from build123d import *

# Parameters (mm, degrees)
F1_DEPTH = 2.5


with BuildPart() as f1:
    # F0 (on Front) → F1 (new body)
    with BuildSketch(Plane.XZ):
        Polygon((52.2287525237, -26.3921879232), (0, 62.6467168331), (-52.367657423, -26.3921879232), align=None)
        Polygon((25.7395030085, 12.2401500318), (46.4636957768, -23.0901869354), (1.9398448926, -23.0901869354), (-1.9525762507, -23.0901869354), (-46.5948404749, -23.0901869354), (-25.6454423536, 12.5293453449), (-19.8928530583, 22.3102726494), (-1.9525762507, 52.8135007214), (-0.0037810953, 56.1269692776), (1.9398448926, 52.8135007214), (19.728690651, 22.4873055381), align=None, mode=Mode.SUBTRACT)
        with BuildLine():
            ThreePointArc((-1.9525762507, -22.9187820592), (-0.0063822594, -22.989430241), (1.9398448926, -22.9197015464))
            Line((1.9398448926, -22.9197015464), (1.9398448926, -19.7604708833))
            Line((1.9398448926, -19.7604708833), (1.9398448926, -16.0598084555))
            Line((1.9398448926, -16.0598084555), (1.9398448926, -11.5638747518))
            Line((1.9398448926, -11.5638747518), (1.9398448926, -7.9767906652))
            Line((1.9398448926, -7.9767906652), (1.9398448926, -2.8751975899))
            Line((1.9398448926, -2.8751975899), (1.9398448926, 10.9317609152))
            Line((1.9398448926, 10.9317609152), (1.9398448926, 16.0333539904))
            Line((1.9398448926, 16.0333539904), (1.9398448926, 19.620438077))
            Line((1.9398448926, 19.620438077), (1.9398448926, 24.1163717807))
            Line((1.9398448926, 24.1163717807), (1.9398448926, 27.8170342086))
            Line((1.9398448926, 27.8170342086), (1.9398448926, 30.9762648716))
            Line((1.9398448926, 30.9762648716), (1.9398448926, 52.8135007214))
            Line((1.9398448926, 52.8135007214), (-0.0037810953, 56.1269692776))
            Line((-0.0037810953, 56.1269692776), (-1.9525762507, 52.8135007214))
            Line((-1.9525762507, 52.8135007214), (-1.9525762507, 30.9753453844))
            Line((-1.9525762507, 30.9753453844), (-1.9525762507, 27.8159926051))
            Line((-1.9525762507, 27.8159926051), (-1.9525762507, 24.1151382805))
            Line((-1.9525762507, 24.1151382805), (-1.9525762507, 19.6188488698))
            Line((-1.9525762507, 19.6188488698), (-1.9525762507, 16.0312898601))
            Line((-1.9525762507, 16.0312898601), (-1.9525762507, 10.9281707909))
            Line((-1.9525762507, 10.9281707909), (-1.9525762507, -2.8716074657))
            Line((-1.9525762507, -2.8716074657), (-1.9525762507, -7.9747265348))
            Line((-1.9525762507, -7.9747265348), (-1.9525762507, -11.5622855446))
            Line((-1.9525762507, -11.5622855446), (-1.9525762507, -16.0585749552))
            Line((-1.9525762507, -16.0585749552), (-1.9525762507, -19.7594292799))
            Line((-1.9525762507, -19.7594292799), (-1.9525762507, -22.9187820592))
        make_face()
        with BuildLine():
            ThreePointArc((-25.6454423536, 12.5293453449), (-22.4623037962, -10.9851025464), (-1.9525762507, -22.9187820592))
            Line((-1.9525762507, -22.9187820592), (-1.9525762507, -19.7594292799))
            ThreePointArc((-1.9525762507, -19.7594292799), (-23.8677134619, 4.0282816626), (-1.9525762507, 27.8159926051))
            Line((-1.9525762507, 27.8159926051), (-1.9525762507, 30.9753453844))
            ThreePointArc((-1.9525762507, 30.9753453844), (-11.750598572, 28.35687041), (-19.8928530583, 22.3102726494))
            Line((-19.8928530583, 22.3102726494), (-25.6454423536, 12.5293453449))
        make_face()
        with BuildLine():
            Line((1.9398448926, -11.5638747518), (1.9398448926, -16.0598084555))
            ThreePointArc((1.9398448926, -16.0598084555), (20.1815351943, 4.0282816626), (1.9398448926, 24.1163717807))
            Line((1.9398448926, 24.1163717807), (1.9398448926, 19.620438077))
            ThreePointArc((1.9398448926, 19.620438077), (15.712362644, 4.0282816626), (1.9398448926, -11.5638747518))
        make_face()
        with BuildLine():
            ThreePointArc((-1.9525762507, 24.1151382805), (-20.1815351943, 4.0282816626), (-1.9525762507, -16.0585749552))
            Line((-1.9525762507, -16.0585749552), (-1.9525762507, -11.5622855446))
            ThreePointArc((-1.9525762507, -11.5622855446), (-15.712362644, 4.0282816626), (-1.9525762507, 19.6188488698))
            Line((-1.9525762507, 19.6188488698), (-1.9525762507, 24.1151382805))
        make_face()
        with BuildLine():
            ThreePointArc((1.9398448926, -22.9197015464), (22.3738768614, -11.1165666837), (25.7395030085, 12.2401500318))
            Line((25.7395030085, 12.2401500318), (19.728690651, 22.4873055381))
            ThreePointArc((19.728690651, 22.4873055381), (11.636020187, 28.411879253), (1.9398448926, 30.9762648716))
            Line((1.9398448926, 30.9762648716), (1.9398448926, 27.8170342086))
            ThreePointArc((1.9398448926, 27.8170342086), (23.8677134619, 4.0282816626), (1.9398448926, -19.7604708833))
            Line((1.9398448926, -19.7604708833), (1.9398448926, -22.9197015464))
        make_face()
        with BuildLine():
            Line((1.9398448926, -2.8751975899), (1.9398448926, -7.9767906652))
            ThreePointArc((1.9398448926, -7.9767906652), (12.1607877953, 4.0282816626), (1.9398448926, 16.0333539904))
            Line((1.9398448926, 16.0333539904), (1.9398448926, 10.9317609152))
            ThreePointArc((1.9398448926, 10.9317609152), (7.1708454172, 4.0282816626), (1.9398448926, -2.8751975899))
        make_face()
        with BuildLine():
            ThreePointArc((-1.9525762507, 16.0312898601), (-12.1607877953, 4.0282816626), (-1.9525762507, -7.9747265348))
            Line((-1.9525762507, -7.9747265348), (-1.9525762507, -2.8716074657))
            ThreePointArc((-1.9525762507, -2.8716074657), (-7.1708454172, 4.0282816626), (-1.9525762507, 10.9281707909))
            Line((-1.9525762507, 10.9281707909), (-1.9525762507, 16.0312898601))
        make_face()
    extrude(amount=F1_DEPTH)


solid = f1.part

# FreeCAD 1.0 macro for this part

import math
import FreeCAD as App
import Part
import Sketcher

V = App.Vector

doc = App.newDocument("Part")
body = doc.addObject("PartDesign::Body", "Body")

# Sketch on XZ plane
sketch1 = doc.addObject("Sketcher::SketchObject", "Sketch")
body.addObject(sketch1)
sketch1.AttachmentSupport = (doc.XZ_Plane, [""])
sketch1.MapMode = "FlatFace"
sketch1.addGeometry([
    Part.LineSegment(V(52.228753, -26.392188, 0), V(0, 62.646717, 0)),  # 0
    Part.LineSegment(V(0, 62.646717, 0), V(-52.367657, -26.392188, 0)),  # 1
    Part.LineSegment(V(-52.367657, -26.392188, 0), V(52.228753, -26.392188, 0)),  # 2
    Part.LineSegment(V(1.939845, 52.813501, 0), V(19.728691, 22.487306, 0)),  # 3
    Part.ArcOfCircle(Part.Circle(V(0, 4.028282, 0), V(0, 0, 1), 27.017713), math.radians(43.095729), math.radians(85.882677)),  # 4
    Part.LineSegment(V(1.939845, 30.976265, 0), V(1.939845, 52.813501, 0)),  # 5
    Part.LineSegment(V(25.739503, 12.24015, 0), V(46.463696, -23.090187, 0)),  # 6
    Part.LineSegment(V(46.463696, -23.090187, 0), V(-46.59484, -23.090187, 0)),  # 7
    Part.LineSegment(V(-46.59484, -23.090187, 0), V(-25.645442, 12.529345, 0)),  # 8
    Part.ArcOfCircle(Part.Circle(V(0, 4.028282, 0), V(0, 0, 1), 27.017713), math.radians(161.660447), math.radians(265.855608)),  # 9
    Part.ArcOfCircle(Part.Circle(V(0, 4.028282, 0), V(0, 0, 1), 27.017713), math.radians(-94.144392), math.radians(-85.882677)),  # 10
    Part.ArcOfCircle(Part.Circle(V(0, 4.028282, 0), V(0, 0, 1), 27.017713), math.radians(-85.882677), math.radians(17.694636)),  # 11
    Part.LineSegment(V(1.939845, -19.760471, 0), V(1.939845, -16.059808, 0)),  # 12
    Part.ArcOfCircle(Part.Circle(V(0, 4.028282, 0), V(0, 0, 1), 20.181535), math.radians(-84.484226), math.radians(84.484226)),  # 13
    Part.LineSegment(V(1.939845, 24.116372, 0), V(1.939845, 27.817034, 0)),  # 14
    Part.ArcOfCircle(Part.Circle(V(0, 4.028282, 0), V(0, 0, 1), 23.867713), math.radians(-85.338152), math.radians(85.338152)),  # 15
    Part.LineSegment(V(1.939845, -11.563875, 0), V(1.939845, -7.976791, 0)),  # 16
    Part.ArcOfCircle(Part.Circle(V(0, 4.028282, 0), V(0, 0, 1), 12.160788), math.radians(-80.821173), math.radians(80.821173)),  # 17
    Part.LineSegment(V(1.939845, 16.033354, 0), V(1.939845, 19.620438, 0)),  # 18
    Part.ArcOfCircle(Part.Circle(V(0, 4.028282, 0), V(0, 0, 1), 15.712363), math.radians(-82.908181), math.radians(82.908181)),  # 19
    Part.LineSegment(V(1.939845, -2.875198, 0), V(1.939845, 10.931761, 0)),  # 20
    Part.ArcOfCircle(Part.Circle(V(0, 4.028282, 0), V(0, 0, 1), 7.170845), math.radians(-74.304889), math.radians(74.304889)),  # 21
    Part.LineSegment(V(-19.892853, 22.310273, 0), V(-1.952576, 52.813501, 0)),  # 22
    Part.LineSegment(V(-1.952576, 52.813501, 0), V(-1.952576, 30.975345, 0)),  # 23
    Part.ArcOfCircle(Part.Circle(V(0, 4.028282, 0), V(0, 0, 1), 27.017713), math.radians(94.144392), math.radians(137.416274)),  # 24
    Part.LineSegment(V(-1.952576, 27.815993, 0), V(-1.952576, 24.115138, 0)),  # 25
    Part.ArcOfCircle(Part.Circle(V(0, 4.028282, 0), V(0, 0, 1), 20.181535), math.radians(95.552088), math.radians(264.447912)),  # 26
    Part.LineSegment(V(-1.952576, -16.058575, 0), V(-1.952576, -19.759429, 0)),  # 27
    Part.ArcOfCircle(Part.Circle(V(0, 4.028282, 0), V(0, 0, 1), 23.867713), math.radians(94.692513), math.radians(265.307487)),  # 28
    Part.LineSegment(V(-1.952576, 19.618849, 0), V(-1.952576, 16.03129, 0)),  # 29
    Part.ArcOfCircle(Part.Circle(V(0, 4.028282, 0), V(0, 0, 1), 12.160788), math.radians(99.239594), math.radians(260.760406)),  # 30
    Part.LineSegment(V(-1.952576, -7.974727, 0), V(-1.952576, -11.562286, 0)),  # 31
    Part.ArcOfCircle(Part.Circle(V(0, 4.028282, 0), V(0, 0, 1), 15.712363), math.radians(97.138605), math.radians(262.861395)),  # 32
    Part.LineSegment(V(-1.952576, 10.928171, 0), V(-1.952576, -2.871607, 0)),  # 33
    Part.ArcOfCircle(Part.Circle(V(0, 4.028282, 0), V(0, 0, 1), 7.170845), math.radians(105.800803), math.radians(254.199197)),  # 34
], False)
sketch1.addConstraint([
    Sketcher.Constraint("Coincident", 0, 2, 1, 1),
    Sketcher.Constraint("Coincident", 1, 2, 2, 1),
    Sketcher.Constraint("Coincident", 2, 2, 0, 1),
    Sketcher.Constraint("Coincident", 3, 2, 4, 1),
    Sketcher.Constraint("Coincident", 4, 2, 5, 1),
    Sketcher.Constraint("Coincident", 5, 2, 3, 1),
    Sketcher.Constraint("Coincident", 6, 2, 7, 1),
    Sketcher.Constraint("Coincident", 7, 2, 8, 1),
    Sketcher.Constraint("Coincident", 8, 2, 9, 1),
    Sketcher.Constraint("Tangent", 9, 2, 10, 1),
    Sketcher.Constraint("Tangent", 10, 2, 11, 1),
    Sketcher.Constraint("Coincident", 11, 2, 6, 1),
    Sketcher.Constraint("Coincident", 12, 2, 13, 1),
    Sketcher.Constraint("Coincident", 13, 2, 14, 1),
    Sketcher.Constraint("Coincident", 14, 2, 15, 2),
    Sketcher.Constraint("Coincident", 15, 1, 12, 1),
    Sketcher.Constraint("Coincident", 16, 2, 17, 1),
    Sketcher.Constraint("Coincident", 17, 2, 18, 1),
    Sketcher.Constraint("Coincident", 18, 2, 19, 2),
    Sketcher.Constraint("Coincident", 19, 1, 16, 1),
    Sketcher.Constraint("Coincident", 20, 1, 21, 1),
    Sketcher.Constraint("Coincident", 21, 2, 20, 2),
    Sketcher.Constraint("Coincident", 22, 2, 23, 1),
    Sketcher.Constraint("Coincident", 23, 2, 24, 1),
    Sketcher.Constraint("Coincident", 24, 2, 22, 1),
    Sketcher.Constraint("Coincident", 25, 2, 26, 1),
    Sketcher.Constraint("Coincident", 26, 2, 27, 1),
    Sketcher.Constraint("Coincident", 27, 2, 28, 2),
    Sketcher.Constraint("Coincident", 28, 1, 25, 1),
    Sketcher.Constraint("Coincident", 29, 2, 30, 1),
    Sketcher.Constraint("Coincident", 30, 2, 31, 1),
    Sketcher.Constraint("Coincident", 31, 2, 32, 2),
    Sketcher.Constraint("Coincident", 32, 1, 29, 1),
    Sketcher.Constraint("Coincident", 33, 1, 34, 1),
    Sketcher.Constraint("Coincident", 34, 2, 33, 2),
    Sketcher.Constraint("Horizontal", 2),
    Sketcher.Constraint("Vertical", 5),
    Sketcher.Constraint("Horizontal", 7),
    Sketcher.Constraint("Vertical", 12),
    Sketcher.Constraint("Vertical", 14),
    Sketcher.Constraint("Vertical", 16),
    Sketcher.Constraint("Vertical", 18),
    Sketcher.Constraint("Vertical", 20),
    Sketcher.Constraint("Vertical", 23),
    Sketcher.Constraint("Vertical", 25),
    Sketcher.Constraint("Vertical", 27),
    Sketcher.Constraint("Vertical", 29),
    Sketcher.Constraint("Vertical", 31),
    Sketcher.Constraint("Vertical", 33),
    Sketcher.Constraint("Coincident", 9, 3, 4, 3),
    Sketcher.Constraint("Coincident", 11, 3, 4, 3),
    Sketcher.Constraint("Coincident", 13, 3, 4, 3),
    Sketcher.Constraint("Coincident", 15, 3, 4, 3),
    Sketcher.Constraint("Coincident", 17, 3, 4, 3),
    Sketcher.Constraint("Coincident", 19, 3, 4, 3),
    Sketcher.Constraint("Coincident", 21, 3, 4, 3),
    Sketcher.Constraint("Coincident", 24, 3, 4, 3),
    Sketcher.Constraint("Coincident", 26, 3, 4, 3),
    Sketcher.Constraint("Coincident", 28, 3, 4, 3),
    Sketcher.Constraint("Coincident", 30, 3, 4, 3),
    Sketcher.Constraint("Coincident", 32, 3, 4, 3),
    Sketcher.Constraint("Coincident", 34, 3, 4, 3),
    Sketcher.Constraint("Equal", 4, 9),
    Sketcher.Constraint("Equal", 11, 24),
    Sketcher.Constraint("Equal", 13, 26),
    Sketcher.Constraint("Equal", 15, 28),
    Sketcher.Constraint("Equal", 17, 30),
    Sketcher.Constraint("Equal", 19, 32),
    Sketcher.Constraint("Equal", 21, 34),
    Sketcher.Constraint("PointOnObject", 4, 3, -2),
    Sketcher.Constraint("PointOnObject", 0, 2, -2),
    Sketcher.Constraint("Parallel", 0, 3),
    Sketcher.Constraint("Parallel", 3, 6),
    Sketcher.Constraint("Parallel", 1, 8),
    Sketcher.Constraint("Parallel", 8, 22),
    Sketcher.Constraint("Horizontal", 5, 2, 22, 2),
    Sketcher.Constraint("Vertical", 5, 2, 10, 2),
    Sketcher.Constraint("Vertical", 10, 2, 12, 2),
    Sketcher.Constraint("Vertical", 12, 2, 13, 2),
    Sketcher.Constraint("Vertical", 15, 1, 16, 2),
    Sketcher.Constraint("Vertical", 16, 2, 17, 2),
    Sketcher.Constraint("Vertical", 19, 1, 20, 1),
    Sketcher.Constraint("Vertical", 9, 2, 22, 2),
    Sketcher.Constraint("Vertical", 23, 2, 25, 2),
    Sketcher.Constraint("Vertical", 25, 2, 26, 2),
    Sketcher.Constraint("Vertical", 28, 1, 29, 2),
    Sketcher.Constraint("Vertical", 29, 2, 30, 2),
    Sketcher.Constraint("Vertical", 32, 1, 33, 1),
    Sketcher.Constraint("Radius", 4, 27.017713),
    Sketcher.Constraint("Radius", 13, 20.181535),
    Sketcher.Constraint("Radius", 15, 23.867713),
    Sketcher.Constraint("Radius", 17, 12.160788),
    Sketcher.Constraint("Radius", 19, 15.712363),
    Sketcher.Constraint("Radius", 21, 7.170845),
    Sketcher.Constraint("DistanceY", 2, 2, 6, 2, 3.302001),
    Sketcher.Constraint("DistanceX", 2, 1, 2, 2, 104.59641),
    Sketcher.Constraint("DistanceY", 20, 1, 20, 2, 13.806959),
    Sketcher.Constraint("DistanceY", 29, 2, 29, 1, 3.587559),
    Sketcher.Constraint("DistanceY", -1, 1, 5, 2, 52.813501),
    Sketcher.Constraint("DistanceY", 10, 2, -1, 1, 22.919702),
    Sketcher.Constraint("DistanceY", 24, 2, 13, 2, 1.806099),
    Sketcher.Constraint("Distance", 6, 40.96004),
    Sketcher.Constraint("Distance", 8, 41.32346),
    Sketcher.Constraint("DistanceX", 7, 2, 7, 1, 93.058536),
    Sketcher.Constraint("DistanceX", -1, 1, 3, 2, 19.728691),
])
pad1 = doc.addObject("PartDesign::Pad", "Pad")
body.addObject(pad1)
pad1.Profile = sketch1
pad1.Length = 2.5

doc.recompute()
